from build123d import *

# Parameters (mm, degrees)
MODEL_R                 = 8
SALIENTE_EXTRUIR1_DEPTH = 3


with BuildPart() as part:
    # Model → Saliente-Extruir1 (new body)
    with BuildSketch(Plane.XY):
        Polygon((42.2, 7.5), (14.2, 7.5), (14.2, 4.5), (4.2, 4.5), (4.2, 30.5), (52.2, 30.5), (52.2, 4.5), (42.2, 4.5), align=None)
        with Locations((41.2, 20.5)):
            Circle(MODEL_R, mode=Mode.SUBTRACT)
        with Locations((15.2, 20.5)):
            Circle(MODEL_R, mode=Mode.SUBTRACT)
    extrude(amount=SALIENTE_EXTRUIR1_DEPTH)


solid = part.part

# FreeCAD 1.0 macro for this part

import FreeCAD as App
import Part
import Sketcher
from FreeCAD import Vector

doc = App.newDocument("Part")
body = doc.addObject("PartDesign::Body", "Body")

# Sketch on XY plane
sketch1 = body.newObject("Sketcher::SketchObject", "Sketch")
sketch1.AttachmentSupport = (doc.getObject("XY_Plane"), [""])
sketch1.MapMode = "FlatFace"
sketch1.addGeometry(Part.LineSegment(Vector(14.2, 7.5, 0), Vector(42.2, 7.5, 0)), False)
sketch1.addGeometry(Part.LineSegment(Vector(42.2, 7.5, 0), Vector(42.2, 4.5, 0)), False)
sketch1.addGeometry(Part.LineSegment(Vector(42.2, 4.5, 0), Vector(52.2, 4.5, 0)), False)
sketch1.addGeometry(Part.LineSegment(Vector(52.2, 4.5, 0), Vector(52.2, 30.5, 0)), False)
sketch1.addGeometry(Part.LineSegment(Vector(52.2, 30.5, 0), Vector(4.2, 30.5, 0)), False)
sketch1.addGeometry(Part.LineSegment(Vector(4.2, 30.5, 0), Vector(4.2, 4.5, 0)), False)
sketch1.addGeometry(Part.LineSegment(Vector(4.2, 4.5, 0), Vector(14.2, 4.5, 0)), False)
sketch1.addGeometry(Part.LineSegment(Vector(14.2, 4.5, 0), Vector(14.2, 7.5, 0)), False)
sketch1.addGeometry(Part.Circle(Vector(41.2, 20.5, 0), Vector(0, 0, 1), 8), False)
sketch1.addGeometry(Part.Circle(Vector(15.2, 20.5, 0), Vector(0, 0, 1), 8), False)
sketch1.addConstraint(Sketcher.Constraint("Coincident", 0, 2, 1, 1))
sketch1.addConstraint(Sketcher.Constraint("Coincident", 1, 2, 2, 1))
sketch1.addConstraint(Sketcher.Constraint("Coincident", 2, 2, 3, 1))
sketch1.addConstraint(Sketcher.Constraint("Coincident", 3, 2, 4, 1))
sketch1.addConstraint(Sketcher.Constraint("Coincident", 4, 2, 5, 1))
sketch1.addConstraint(Sketcher.Constraint("Coincident", 5, 2, 6, 1))
sketch1.addConstraint(Sketcher.Constraint("Coincident", 6, 2, 7, 1))
sketch1.addConstraint(Sketcher.Constraint("Coincident", 7, 2, 0, 1))
sketch1.addConstraint(Sketcher.Constraint("Horizontal", 0))
sketch1.addConstraint(Sketcher.Constraint("Vertical", 1))
sketch1.addConstraint(Sketcher.Constraint("Horizontal", 2))
sketch1.addConstraint(Sketcher.Constraint("Vertical", 3))
sketch1.addConstraint(Sketcher.Constraint("Horizontal", 4))
sketch1.addConstraint(Sketcher.Constraint("Vertical", 5))
sketch1.addConstraint(Sketcher.Constraint("Horizontal", 6))
sketch1.addConstraint(Sketcher.Constraint("Vertical", 7))
sketch1.addConstraint(Sketcher.Constraint("Equal", 8, 9))
sketch1.addConstraint(Sketcher.Constraint("Horizontal", 8, 3, 9, 3))
sketch1.addConstraint(Sketcher.Constraint("Horizontal", 2, 2, 5, 2))
sketch1.addConstraint(Sketcher.Constraint("Equal", 2, 6))
sketch1.addConstraint(Sketcher.Constraint("Diameter", 8, 16.0))
sketch1.addConstraint(Sketcher.Constraint("DistanceX", 0, 1, 0, 2, 28.0))
sketch1.addConstraint(Sketcher.Constraint("DistanceX", 2, 1, 2, 2, 10.0))
sketch1.addConstraint(Sketcher.Constraint("DistanceY", 1, 2, 1, 1, 3.0))
sketch1.addConstraint(Sketcher.Constraint("DistanceY", 3, 1, 3, 2, 26.0))
sketch1.addConstraint(Sketcher.Constraint("DistanceX", 9, 3, 8, 3, 26.0))
sketch1.addConstraint(Sketcher.Constraint("DistanceX", 8, 3, 0, 2, 1.0))
sketch1.addConstraint(Sketcher.Constraint("DistanceY", 0, 2, 8, 3, 13.0))
sketch1.addConstraint(Sketcher.Constraint("DistanceX", -1, 1, 8, 3, 41.2))
sketch1.addConstraint(Sketcher.Constraint("DistanceY", -1, 1, 8, 3, 20.5))
pad1 = body.newObject("PartDesign::Pad", "Pad")
pad1.Profile = sketch1
pad1.Length = 3

doc.recompute()
